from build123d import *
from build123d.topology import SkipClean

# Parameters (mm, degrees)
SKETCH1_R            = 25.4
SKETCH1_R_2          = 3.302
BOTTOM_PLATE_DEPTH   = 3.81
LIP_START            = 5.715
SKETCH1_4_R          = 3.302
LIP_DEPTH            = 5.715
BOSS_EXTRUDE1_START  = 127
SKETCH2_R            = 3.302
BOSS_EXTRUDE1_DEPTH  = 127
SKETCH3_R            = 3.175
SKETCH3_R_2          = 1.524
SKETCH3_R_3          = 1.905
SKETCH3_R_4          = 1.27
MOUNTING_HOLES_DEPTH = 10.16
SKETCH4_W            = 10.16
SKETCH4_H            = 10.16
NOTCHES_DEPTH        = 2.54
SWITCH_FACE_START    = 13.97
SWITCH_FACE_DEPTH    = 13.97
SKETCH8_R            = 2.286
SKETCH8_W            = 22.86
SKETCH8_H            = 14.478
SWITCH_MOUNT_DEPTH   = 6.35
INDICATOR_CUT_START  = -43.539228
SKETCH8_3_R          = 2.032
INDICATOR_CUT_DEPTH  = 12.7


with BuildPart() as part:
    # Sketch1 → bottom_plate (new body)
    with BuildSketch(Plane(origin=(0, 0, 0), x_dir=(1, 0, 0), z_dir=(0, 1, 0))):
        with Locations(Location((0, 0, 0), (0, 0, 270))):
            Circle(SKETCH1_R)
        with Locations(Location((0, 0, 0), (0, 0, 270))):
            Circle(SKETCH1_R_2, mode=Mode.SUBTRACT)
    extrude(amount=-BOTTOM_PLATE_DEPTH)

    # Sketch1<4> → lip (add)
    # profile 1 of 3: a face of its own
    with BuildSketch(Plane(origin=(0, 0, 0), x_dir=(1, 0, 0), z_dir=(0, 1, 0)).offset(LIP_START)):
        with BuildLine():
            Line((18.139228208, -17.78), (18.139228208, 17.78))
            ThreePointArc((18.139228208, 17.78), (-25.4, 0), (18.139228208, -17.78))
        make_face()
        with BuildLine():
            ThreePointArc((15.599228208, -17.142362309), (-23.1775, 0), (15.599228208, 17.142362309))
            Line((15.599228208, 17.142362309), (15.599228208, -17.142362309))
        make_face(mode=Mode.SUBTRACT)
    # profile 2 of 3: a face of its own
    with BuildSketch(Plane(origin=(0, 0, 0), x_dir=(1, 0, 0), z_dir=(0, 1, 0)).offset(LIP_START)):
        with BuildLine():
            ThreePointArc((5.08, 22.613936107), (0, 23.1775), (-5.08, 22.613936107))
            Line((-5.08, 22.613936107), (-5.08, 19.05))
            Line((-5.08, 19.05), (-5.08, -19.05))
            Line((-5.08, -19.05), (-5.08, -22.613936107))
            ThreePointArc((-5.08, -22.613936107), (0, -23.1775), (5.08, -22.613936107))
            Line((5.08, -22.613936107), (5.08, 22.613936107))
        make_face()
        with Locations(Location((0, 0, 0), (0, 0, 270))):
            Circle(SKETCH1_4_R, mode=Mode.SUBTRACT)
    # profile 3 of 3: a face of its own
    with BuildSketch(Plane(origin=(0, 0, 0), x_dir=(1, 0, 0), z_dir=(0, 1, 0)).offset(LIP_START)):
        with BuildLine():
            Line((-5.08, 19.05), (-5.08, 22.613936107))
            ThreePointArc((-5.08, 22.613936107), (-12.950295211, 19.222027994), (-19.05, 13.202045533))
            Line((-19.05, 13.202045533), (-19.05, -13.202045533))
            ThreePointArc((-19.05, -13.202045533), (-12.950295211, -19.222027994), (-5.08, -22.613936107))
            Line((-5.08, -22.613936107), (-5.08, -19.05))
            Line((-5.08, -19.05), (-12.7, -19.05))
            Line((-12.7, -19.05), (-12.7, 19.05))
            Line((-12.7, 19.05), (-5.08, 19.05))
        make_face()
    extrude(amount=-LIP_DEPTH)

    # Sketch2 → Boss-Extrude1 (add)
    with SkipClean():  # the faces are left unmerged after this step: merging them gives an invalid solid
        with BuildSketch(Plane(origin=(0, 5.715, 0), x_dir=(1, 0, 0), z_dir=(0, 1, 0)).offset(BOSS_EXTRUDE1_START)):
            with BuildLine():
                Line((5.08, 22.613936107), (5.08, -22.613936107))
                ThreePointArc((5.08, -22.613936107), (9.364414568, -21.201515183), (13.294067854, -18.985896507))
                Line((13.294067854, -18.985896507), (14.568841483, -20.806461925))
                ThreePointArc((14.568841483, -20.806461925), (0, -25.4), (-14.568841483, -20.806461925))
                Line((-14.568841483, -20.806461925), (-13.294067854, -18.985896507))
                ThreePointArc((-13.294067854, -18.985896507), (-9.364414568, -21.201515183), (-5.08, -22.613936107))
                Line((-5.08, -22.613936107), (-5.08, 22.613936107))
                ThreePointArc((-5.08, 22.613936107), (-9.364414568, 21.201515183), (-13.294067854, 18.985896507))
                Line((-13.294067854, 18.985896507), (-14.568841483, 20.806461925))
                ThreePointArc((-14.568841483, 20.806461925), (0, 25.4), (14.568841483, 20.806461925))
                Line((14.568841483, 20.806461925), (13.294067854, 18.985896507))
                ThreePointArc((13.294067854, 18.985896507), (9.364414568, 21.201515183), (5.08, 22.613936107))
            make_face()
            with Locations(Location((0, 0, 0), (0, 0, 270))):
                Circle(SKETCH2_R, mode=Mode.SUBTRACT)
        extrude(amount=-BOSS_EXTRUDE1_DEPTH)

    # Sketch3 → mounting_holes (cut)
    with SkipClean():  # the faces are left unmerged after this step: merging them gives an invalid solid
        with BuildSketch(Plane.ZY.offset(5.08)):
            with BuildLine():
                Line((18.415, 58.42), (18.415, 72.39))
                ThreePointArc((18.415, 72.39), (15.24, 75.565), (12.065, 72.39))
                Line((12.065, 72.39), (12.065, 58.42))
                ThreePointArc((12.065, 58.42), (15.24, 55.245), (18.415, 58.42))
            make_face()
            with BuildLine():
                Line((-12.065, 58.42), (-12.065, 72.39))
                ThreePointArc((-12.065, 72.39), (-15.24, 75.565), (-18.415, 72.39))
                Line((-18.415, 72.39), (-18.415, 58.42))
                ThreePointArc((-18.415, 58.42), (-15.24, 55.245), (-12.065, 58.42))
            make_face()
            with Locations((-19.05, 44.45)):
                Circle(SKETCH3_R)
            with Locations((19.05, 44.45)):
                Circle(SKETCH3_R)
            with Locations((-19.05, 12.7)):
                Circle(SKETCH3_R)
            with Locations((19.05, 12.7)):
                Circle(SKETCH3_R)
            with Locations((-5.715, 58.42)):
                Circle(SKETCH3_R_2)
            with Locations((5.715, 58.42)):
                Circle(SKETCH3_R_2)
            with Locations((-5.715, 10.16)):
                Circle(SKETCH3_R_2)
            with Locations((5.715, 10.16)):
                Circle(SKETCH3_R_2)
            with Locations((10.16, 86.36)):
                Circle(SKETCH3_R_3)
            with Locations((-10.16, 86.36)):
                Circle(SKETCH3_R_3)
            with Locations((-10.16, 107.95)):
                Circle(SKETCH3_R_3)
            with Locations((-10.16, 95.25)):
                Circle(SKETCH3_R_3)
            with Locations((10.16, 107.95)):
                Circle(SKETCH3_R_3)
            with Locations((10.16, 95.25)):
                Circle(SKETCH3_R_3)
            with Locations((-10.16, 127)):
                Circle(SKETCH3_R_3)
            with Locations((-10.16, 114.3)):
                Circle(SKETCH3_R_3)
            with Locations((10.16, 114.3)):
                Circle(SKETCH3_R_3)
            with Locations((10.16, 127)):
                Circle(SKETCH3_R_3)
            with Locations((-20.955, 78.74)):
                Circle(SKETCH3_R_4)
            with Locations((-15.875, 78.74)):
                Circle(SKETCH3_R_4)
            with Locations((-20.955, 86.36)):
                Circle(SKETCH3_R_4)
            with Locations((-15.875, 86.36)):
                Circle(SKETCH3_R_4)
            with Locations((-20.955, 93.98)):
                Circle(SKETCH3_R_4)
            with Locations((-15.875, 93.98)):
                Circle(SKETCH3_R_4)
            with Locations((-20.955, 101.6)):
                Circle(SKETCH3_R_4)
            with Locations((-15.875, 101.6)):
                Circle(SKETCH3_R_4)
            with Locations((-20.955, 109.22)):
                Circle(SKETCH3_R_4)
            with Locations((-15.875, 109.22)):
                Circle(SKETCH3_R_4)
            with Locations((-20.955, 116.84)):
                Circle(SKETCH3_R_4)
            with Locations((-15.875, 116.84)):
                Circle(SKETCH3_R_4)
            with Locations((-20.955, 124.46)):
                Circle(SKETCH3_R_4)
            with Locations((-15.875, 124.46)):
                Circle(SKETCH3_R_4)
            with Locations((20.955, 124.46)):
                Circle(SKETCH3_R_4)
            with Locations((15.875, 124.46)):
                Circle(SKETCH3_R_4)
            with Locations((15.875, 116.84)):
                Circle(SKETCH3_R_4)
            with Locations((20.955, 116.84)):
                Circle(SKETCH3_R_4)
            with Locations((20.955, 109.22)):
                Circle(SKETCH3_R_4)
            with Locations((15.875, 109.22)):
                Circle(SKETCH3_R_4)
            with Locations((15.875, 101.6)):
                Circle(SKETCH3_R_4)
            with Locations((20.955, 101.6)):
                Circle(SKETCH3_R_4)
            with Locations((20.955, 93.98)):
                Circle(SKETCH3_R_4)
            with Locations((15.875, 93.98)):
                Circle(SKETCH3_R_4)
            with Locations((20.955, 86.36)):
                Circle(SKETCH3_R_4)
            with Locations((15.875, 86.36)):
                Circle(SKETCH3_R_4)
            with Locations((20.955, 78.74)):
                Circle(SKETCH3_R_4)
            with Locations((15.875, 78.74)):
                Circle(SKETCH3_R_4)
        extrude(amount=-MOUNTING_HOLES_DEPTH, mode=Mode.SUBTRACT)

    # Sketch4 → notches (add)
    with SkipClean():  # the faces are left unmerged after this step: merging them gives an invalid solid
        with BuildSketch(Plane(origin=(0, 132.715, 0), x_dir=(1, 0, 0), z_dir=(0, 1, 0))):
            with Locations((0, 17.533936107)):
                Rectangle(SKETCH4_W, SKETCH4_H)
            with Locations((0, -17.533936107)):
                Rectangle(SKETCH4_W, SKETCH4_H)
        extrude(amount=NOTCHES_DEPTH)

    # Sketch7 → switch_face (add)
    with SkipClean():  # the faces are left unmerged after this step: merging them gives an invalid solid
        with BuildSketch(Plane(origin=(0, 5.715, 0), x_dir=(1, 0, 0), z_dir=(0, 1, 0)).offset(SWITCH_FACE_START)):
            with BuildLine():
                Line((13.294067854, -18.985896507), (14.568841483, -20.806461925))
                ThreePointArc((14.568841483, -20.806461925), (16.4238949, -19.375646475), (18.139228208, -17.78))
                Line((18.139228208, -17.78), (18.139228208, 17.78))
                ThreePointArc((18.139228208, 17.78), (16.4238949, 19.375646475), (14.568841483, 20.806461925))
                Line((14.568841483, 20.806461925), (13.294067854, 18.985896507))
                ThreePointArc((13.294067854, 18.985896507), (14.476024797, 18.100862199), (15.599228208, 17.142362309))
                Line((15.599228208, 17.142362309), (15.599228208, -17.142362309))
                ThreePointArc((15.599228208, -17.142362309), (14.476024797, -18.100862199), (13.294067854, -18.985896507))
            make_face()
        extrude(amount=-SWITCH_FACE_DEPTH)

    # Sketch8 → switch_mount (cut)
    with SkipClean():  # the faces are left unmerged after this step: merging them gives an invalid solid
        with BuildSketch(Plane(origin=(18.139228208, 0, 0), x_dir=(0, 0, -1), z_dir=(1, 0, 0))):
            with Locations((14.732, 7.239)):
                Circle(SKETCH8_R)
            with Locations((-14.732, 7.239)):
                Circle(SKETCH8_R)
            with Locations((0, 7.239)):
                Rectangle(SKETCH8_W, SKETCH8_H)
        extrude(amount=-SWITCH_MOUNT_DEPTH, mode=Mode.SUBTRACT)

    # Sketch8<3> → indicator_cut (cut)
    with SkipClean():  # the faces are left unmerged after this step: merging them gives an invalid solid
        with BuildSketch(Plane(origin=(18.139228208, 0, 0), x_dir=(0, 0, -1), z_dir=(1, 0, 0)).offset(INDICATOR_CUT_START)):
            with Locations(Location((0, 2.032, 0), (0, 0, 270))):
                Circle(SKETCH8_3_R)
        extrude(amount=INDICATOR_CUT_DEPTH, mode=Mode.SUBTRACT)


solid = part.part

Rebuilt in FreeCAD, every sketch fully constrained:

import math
import FreeCAD as App
import Part
import Sketcher
from FreeCAD import Vector
Q = App.Units.Quantity


def add_polygon(sketch, points):
    """Adds a closed chain of lines whose ends are joined by coincident constraints."""
    first, n = sketch.GeometryCount, len(points)
    for a, b in zip(points, points[1:] + points[:1]):
        sketch.addGeometry(Part.LineSegment(App.Vector(*a, 0), App.Vector(*b, 0)), False)
    for i in range(n):
        sketch.addConstraint(Sketcher.Constraint("Coincident", first + i, 2, first + (i + 1) % n, 1))

doc = App.newDocument("Part")
params = doc.addObject("Spreadsheet::Sheet", "Params")
for row, (alias, value) in enumerate([
    ("sketch1_diameter", "2 in"),
    ("sketch1_diameter2", "0.26 in"),
    ("pad1_length", "0.15 in"),
    ("sketch2_radius", "1 in"),
    ("sketch2_diameter", "0.26 in"),
    ("sketch2_width", "0.3 in"),
    ("sketch2_height", "1.4 in"),
    ("sketch2_height2", "1.5 in"),
    ("pad2_length", "0.225 in"),
    ("sketch3_radius", "1 in"),
    ("sketch3_diameter", "0.26 in"),
    ("pad3_length", "5 in"),
    ("sketch4_diameter", "0.1 in"),
    ("sketch4_diameter2", "0.25 in"),
    ("sketch4_diameter3", "0.12 in"),
    ("sketch4_diameter4", "0.15 in"),
    ("sketch4_width", "0.55 in"),
    ("pocket1_length", "0.4 in"),
    ("sketch5_width", "0.4 in"),
    ("pad4_length", "0.1 in"),
    ("sketch6_radius", "1 in"),
    ("sketch6_height", "1.4 in"),
    ("pad5_length", "0.55 in"),
    ("sketch7_diameter", "0.18 in"),
    ("sketch7_height", "0.9 in"),
    ("sketch7_width", "0.57 in"),
    ("pocket2_length", "0.25 in"),
    ("sketch8_diameter", "0.16 in"),
    ("pocket3_length", "0.5 in"),
], start=1):
    params.set(f"A{row}", alias)
    params.set(f"B{row}", "=" + value)
    params.setAlias(f"B{row}", alias)

body = doc.addObject("PartDesign::Body", "Body")

# Sketch on XZ plane
sketch1 = body.newObject("Sketcher::SketchObject", "Sketch")
sketch1.AttachmentSupport = (doc.getObject("XZ_Plane"), [""])
sketch1.MapMode = "FlatFace"
sketch1.addGeometry([
    Part.Circle(Vector(0, 0, 0), Vector(0, 0, 1), 25.4),
    Part.Circle(Vector(0, 0, 0), Vector(0, 0, 1), 3.302),
], False)
sketch1.addConstraint([
    Sketcher.Constraint("Coincident", 0, 3, -1, 1),
    Sketcher.Constraint("Coincident", 1, 3, -1, 1),
    Sketcher.Constraint("Diameter", 0, Q("2 in")),
    Sketcher.Constraint("Diameter", 1, Q("0.26 in")),
])
sketch1.setExpression("Constraints[2]", "Params.sketch1_diameter")
sketch1.setExpression("Constraints[3]", "Params.sketch1_diameter2")
pad1 = body.newObject("PartDesign::Pad", "Pad")
pad1.Profile = sketch1
pad1.setExpression("Length", "Params.pad1_length")

# Sketch on XZ plane
sketch2 = body.newObject("Sketcher::SketchObject", "Sketch001")
sketch2.AttachmentSupport = (doc.getObject("XZ_Plane"), [""])
sketch2.MapMode = "FlatFace"
sketch2.AttachmentOffset = App.Placement(Vector(0, 0, -0.225 * 25.4), App.Rotation())
sketch2.addGeometry(Part.LineSegment(Vector(18.139228, 17.78, 0), Vector(18.139228, -17.78, 0)), False)  # 0
sketch2.addGeometry(Part.ArcOfCircle(Part.Circle(Vector(0, 0, 0), Vector(0, 0, 1), 25.4), math.radians(44.427004), math.radians(315.572996)), False)  # 1
sketch2.addGeometry(Part.LineSegment(Vector(15.599228, -17.142362, 0), Vector(15.599228, 17.142362, 0)), False)  # 2
sketch2.addGeometry(Part.ArcOfCircle(Part.Circle(Vector(0, 0, 0), Vector(0, 0, 1), 23.1775), math.radians(47.698393), math.radians(77.339238)), False)  # 3
sketch2.addGeometry(Part.LineSegment(Vector(5.08, 22.613936, 0), Vector(5.08, -22.613936, 0)), False)  # 4
sketch2.addGeometry(Part.ArcOfCircle(Part.Circle(Vector(0, 0, 0), Vector(0, 0, 1), 23.1775), math.radians(-77.339238), math.radians(-47.698393)), False)  # 5
sketch2.addGeometry(Part.ArcOfCircle(Part.Circle(Vector(0, 0, 0), Vector(0, 0, 1), 23.1775), math.radians(145.277237), math.radians(214.722763)), False)  # 6
sketch2.addGeometry(Part.LineSegment(Vector(-19.05, -13.202046, 0), Vector(-19.05, 13.202046, 0)), False)  # 7
sketch2.addGeometry(Part.Circle(Vector(0, 0, 0), Vector(0, 0, 1), 3.302), False)  # 8
add_polygon(sketch2, [(-5.08, -19.05), (-5.08, 19.05), (-12.7, 19.05), (-12.7, -19.05)])  # lines 9-12
sketch2.addConstraint([
    Sketcher.Constraint("Coincident", 0, 1, 1, 1),
    Sketcher.Constraint("Coincident", 1, 2, 0, 2),
    Sketcher.Constraint("Coincident", 2, 2, 3, 1),
    Sketcher.Constraint("Coincident", 3, 2, 4, 1),
    Sketcher.Constraint("Coincident", 4, 2, 5, 1),
    Sketcher.Constraint("Coincident", 5, 2, 2, 1),
    Sketcher.Constraint("Coincident", 6, 1, 7, 2),
    Sketcher.Constraint("Coincident", 7, 1, 6, 2),
    Sketcher.Constraint("Vertical", 0),
    Sketcher.Constraint("Vertical", 2),
    Sketcher.Constraint("Vertical", 4),
    Sketcher.Constraint("Vertical", 7),
    Sketcher.Constraint("Vertical", 9),
    Sketcher.Constraint("Horizontal", 10),
    Sketcher.Constraint("Vertical", 11),
    Sketcher.Constraint("Horizontal", 12),
    Sketcher.Constraint("Coincident", 1, 3, -1, 1),
    Sketcher.Constraint("Coincident", 3, 3, -1, 1),
    Sketcher.Constraint("Coincident", 5, 3, -1, 1),
    Sketcher.Constraint("Coincident", 6, 3, -1, 1),
    Sketcher.Constraint("Coincident", 8, 3, -1, 1),
    Sketcher.Constraint("Equal", 3, 5),
    Sketcher.Constraint("Equal", 5, 6),
    Sketcher.Constraint("Radius", 1, Q("1 in")),
    Sketcher.Constraint("Diameter", 8, Q("0.26 in")),
    Sketcher.Constraint("DistanceX", 10, 2, 10, 1, Q("0.3 in")),
    Sketcher.Constraint("DistanceY", 0, 2, 0, 1, Q("1.4 in")),
    Sketcher.Constraint("DistanceY", 9, 1, 9, 2, Q("1.5 in")),
    Sketcher.Constraint("DistanceX", -1, 1, 3, 2, Q("0.2 in")),
    Sketcher.Constraint("DistanceX", 9, 2, -1, 1, Q("0.2 in")),
    Sketcher.Constraint("Radius", 3, Q("0.9125 in")),
    Sketcher.Constraint("DistanceX", 2, 2, 0, 1, Q("0.1 in")),
    Sketcher.Constraint("DistanceX", 6, 1, -1, 1, Q("0.75 in")),
    Sketcher.Constraint("DistanceY", -1, 1, 9, 2, Q("0.75 in")),
])
sketch2.setExpression("Constraints[27]", "Params.sketch2_radius")
sketch2.setExpression("Constraints[28]", "Params.sketch2_diameter")
sketch2.setExpression("Constraints[29]", "Params.sketch2_width")
sketch2.setExpression("Constraints[30]", "Params.sketch2_height")
sketch2.setExpression("Constraints[31]", "Params.sketch2_height2")
pad2 = body.newObject("PartDesign::Pad", "Pad001")
pad2.Profile = sketch2
pad2.setExpression("Length", "Params.pad2_length")

# Sketch on XZ plane
sketch3 = body.newObject("Sketcher::SketchObject", "Sketch002")
sketch3.AttachmentSupport = (doc.getObject("XZ_Plane"), [""])
sketch3.MapMode = "FlatFace"
sketch3.AttachmentOffset = App.Placement(Vector(0, 0, -5.225 * 25.4), App.Rotation())
sketch3.addGeometry([
    Part.LineSegment(Vector(5.08, 22.613936, 0), Vector(5.08, -22.613936, 0)),  # 0
    Part.ArcOfCircle(Part.Circle(Vector(0, 0, 0), Vector(0, 0, 1), 23.1775), math.radians(-77.339238), math.radians(-55)),  # 1
    Part.LineSegment(Vector(13.294068, -18.985897, 0), Vector(14.568841, -20.806462, 0)),  # 2
    Part.ArcOfCircle(Part.Circle(Vector(0, 0, 0), Vector(0, 0, 1), 25.4), math.radians(-125), math.radians(-55)),  # 3
    Part.LineSegment(Vector(-14.568841, -20.806462, 0), Vector(-13.294068, -18.985897, 0)),  # 4
    Part.ArcOfCircle(Part.Circle(Vector(0, 0, 0), Vector(0, 0, 1), 23.1775), math.radians(-125), math.radians(-102.660762)),  # 5
    Part.LineSegment(Vector(-5.08, -22.613936, 0), Vector(-5.08, 22.613936, 0)),  # 6
    Part.ArcOfCircle(Part.Circle(Vector(0, 0, 0), Vector(0, 0, 1), 23.1775), math.radians(102.660762), math.radians(125)),  # 7
    Part.LineSegment(Vector(-13.294068, 18.985897, 0), Vector(-14.568841, 20.806462, 0)),  # 8
    Part.ArcOfCircle(Part.Circle(Vector(0, 0, 0), Vector(0, 0, 1), 25.4), math.radians(55), math.radians(125)),  # 9
    Part.LineSegment(Vector(14.568841, 20.806462, 0), Vector(13.294068, 18.985897, 0)),  # 10
    Part.ArcOfCircle(Part.Circle(Vector(0, 0, 0), Vector(0, 0, 1), 23.1775), math.radians(55), math.radians(77.339238)),  # 11
    Part.Circle(Vector(0, 0, 0), Vector(0, 0, 1), 3.302),  # 12
], False)
sketch3.addConstraint([
    Sketcher.Constraint("Coincident", 0, 2, 1, 1),
    Sketcher.Constraint("Coincident", 1, 2, 2, 1),
    Sketcher.Constraint("Coincident", 2, 2, 3, 2),
    Sketcher.Constraint("Coincident", 3, 1, 4, 1),
    Sketcher.Constraint("Coincident", 4, 2, 5, 1),
    Sketcher.Constraint("Coincident", 5, 2, 6, 1),
    Sketcher.Constraint("Coincident", 6, 2, 7, 1),
    Sketcher.Constraint("Coincident", 7, 2, 8, 1),
    Sketcher.Constraint("Coincident", 8, 2, 9, 2),
    Sketcher.Constraint("Coincident", 9, 1, 10, 1),
    Sketcher.Constraint("Coincident", 10, 2, 11, 1),
    Sketcher.Constraint("Coincident", 11, 2, 0, 1),
    Sketcher.Constraint("Vertical", 0),
    Sketcher.Constraint("Vertical", 6),
    Sketcher.Constraint("Coincident", 1, 3, -1, 1),
    Sketcher.Constraint("Coincident", 3, 3, -1, 1),
    Sketcher.Constraint("Coincident", 5, 3, -1, 1),
    Sketcher.Constraint("Coincident", 7, 3, -1, 1),
    Sketcher.Constraint("Coincident", 9, 3, -1, 1),
    Sketcher.Constraint("Coincident", 11, 3, -1, 1),
    Sketcher.Constraint("Coincident", 12, 3, -1, 1),
    Sketcher.Constraint("Equal", 1, 5),
    Sketcher.Constraint("Equal", 5, 7),
    Sketcher.Constraint("Equal", 3, 9),
    Sketcher.Constraint("Equal", 7, 11),
    Sketcher.Constraint("Parallel", 2, 8),
    Sketcher.Constraint("Parallel", 4, 10),
    Sketcher.Constraint("Horizontal", 2, 2, 3, 1),
    Sketcher.Constraint("Horizontal", 1, 2, 4, 2),
    Sketcher.Constraint("Horizontal", 0, 2, 5, 2),
    Sketcher.Constraint("Horizontal", 8, 2, 9, 1),
    Sketcher.Constraint("Vertical", 4, 2, 7, 2),
    Sketcher.Constraint("Radius", 3, Q("1 in")),
    Sketcher.Constraint("Diameter", 12, Q("0.26 in")),
    Sketcher.Constraint("Angle", 2, Q("-55 deg")),
    Sketcher.Constraint("DistanceX", -1, 1, 0, 2, Q("0.2 in")),
    Sketcher.Constraint("Radius", 1, Q("0.9125 in")),
    Sketcher.Constraint("DistanceX", -1, 1, 2, 2, 14.568841),
])
sketch3.setExpression("Constraints[32]", "Params.sketch3_radius")
sketch3.setExpression("Constraints[33]", "Params.sketch3_diameter")
pad3 = body.newObject("PartDesign::Pad", "Pad002")
pad3.Profile = sketch3
pad3.setExpression("Length", "Params.pad3_length")

# Sketch on YZ plane
sketch4 = body.newObject("Sketcher::SketchObject", "Sketch003")
sketch4.AttachmentSupport = (doc.getObject("YZ_Plane"), [""])
sketch4.MapMode = "FlatFace"
sketch4.AttachmentOffset = App.Placement(Vector(0, 0, -0.2 * 25.4), App.Rotation())
sketch4.addGeometry([
    Part.LineSegment(Vector(58.42, 18.415, 0), Vector(72.39, 18.415, 0)),  # 0
    Part.ArcOfCircle(Part.Circle(Vector(72.39, 15.24, 0), Vector(0, 0, 1), 3.175), math.radians(-90), math.radians(90)),  # 1
    Part.LineSegment(Vector(72.39, 12.065, 0), Vector(58.42, 12.065, 0)),  # 2
    Part.ArcOfCircle(Part.Circle(Vector(58.42, 15.24, 0), Vector(0, 0, 1), 3.175), math.radians(90), math.radians(270)),  # 3
    Part.LineSegment(Vector(58.42, -12.065, 0), Vector(72.39, -12.065, 0)),  # 4
    Part.ArcOfCircle(Part.Circle(Vector(72.39, -15.24, 0), Vector(0, 0, 1), 3.175), math.radians(-90), math.radians(90)),  # 5
    Part.LineSegment(Vector(72.39, -18.415, 0), Vector(58.42, -18.415, 0)),  # 6
    Part.ArcOfCircle(Part.Circle(Vector(58.42, -15.24, 0), Vector(0, 0, 1), 3.175), math.radians(90), math.radians(270)),  # 7
    Part.Circle(Vector(44.45, -19.05, 0), Vector(0, 0, 1), 3.175),  # 8
    Part.Circle(Vector(44.45, 19.05, 0), Vector(0, 0, 1), 3.175),  # 9
    Part.Circle(Vector(12.7, -19.05, 0), Vector(0, 0, 1), 3.175),  # 10
    Part.Circle(Vector(12.7, 19.05, 0), Vector(0, 0, 1), 3.175),  # 11
    Part.Circle(Vector(58.42, -5.715, 0), Vector(0, 0, 1), 1.524),  # 12
    Part.Circle(Vector(58.42, 5.715, 0), Vector(0, 0, 1), 1.524),  # 13
    Part.Circle(Vector(10.16, -5.715, 0), Vector(0, 0, 1), 1.524),  # 14
    Part.Circle(Vector(10.16, 5.715, 0), Vector(0, 0, 1), 1.524),  # 15
    Part.Circle(Vector(86.36, 10.16, 0), Vector(0, 0, 1), 1.905),  # 16
    Part.Circle(Vector(86.36, -10.16, 0), Vector(0, 0, 1), 1.905),  # 17
    Part.Circle(Vector(107.95, -10.16, 0), Vector(0, 0, 1), 1.905),  # 18
    Part.Circle(Vector(95.25, -10.16, 0), Vector(0, 0, 1), 1.905),  # 19
    Part.Circle(Vector(107.95, 10.16, 0), Vector(0, 0, 1), 1.905),  # 20
    Part.Circle(Vector(95.25, 10.16, 0), Vector(0, 0, 1), 1.905),  # 21
    Part.Circle(Vector(127, -10.16, 0), Vector(0, 0, 1), 1.905),  # 22
    Part.Circle(Vector(114.3, -10.16, 0), Vector(0, 0, 1), 1.905),  # 23
    Part.Circle(Vector(114.3, 10.16, 0), Vector(0, 0, 1), 1.905),  # 24
    Part.Circle(Vector(127, 10.16, 0), Vector(0, 0, 1), 1.905),  # 25
    Part.Circle(Vector(78.74, -20.955, 0), Vector(0, 0, 1), 1.27),  # 26
    Part.Circle(Vector(78.74, -15.875, 0), Vector(0, 0, 1), 1.27),  # 27
    Part.Circle(Vector(86.36, -20.955, 0), Vector(0, 0, 1), 1.27),  # 28
    Part.Circle(Vector(86.36, -15.875, 0), Vector(0, 0, 1), 1.27),  # 29
    Part.Circle(Vector(93.98, -20.955, 0), Vector(0, 0, 1), 1.27),  # 30
    Part.Circle(Vector(93.98, -15.875, 0), Vector(0, 0, 1), 1.27),  # 31
    Part.Circle(Vector(101.6, -20.955, 0), Vector(0, 0, 1), 1.27),  # 32
    Part.Circle(Vector(101.6, -15.875, 0), Vector(0, 0, 1), 1.27),  # 33
    Part.Circle(Vector(109.22, -20.955, 0), Vector(0, 0, 1), 1.27),  # 34
    Part.Circle(Vector(109.22, -15.875, 0), Vector(0, 0, 1), 1.27),  # 35
    Part.Circle(Vector(116.84, -20.955, 0), Vector(0, 0, 1), 1.27),  # 36
    Part.Circle(Vector(116.84, -15.875, 0), Vector(0, 0, 1), 1.27),  # 37
    Part.Circle(Vector(124.46, -20.955, 0), Vector(0, 0, 1), 1.27),  # 38
    Part.Circle(Vector(124.46, -15.875, 0), Vector(0, 0, 1), 1.27),  # 39
    Part.Circle(Vector(124.46, 20.955, 0), Vector(0, 0, 1), 1.27),  # 40
    Part.Circle(Vector(124.46, 15.875, 0), Vector(0, 0, 1), 1.27),  # 41
    Part.Circle(Vector(116.84, 15.875, 0), Vector(0, 0, 1), 1.27),  # 42
    Part.Circle(Vector(116.84, 20.955, 0), Vector(0, 0, 1), 1.27),  # 43
    Part.Circle(Vector(109.22, 20.955, 0), Vector(0, 0, 1), 1.27),  # 44
    Part.Circle(Vector(109.22, 15.875, 0), Vector(0, 0, 1), 1.27),  # 45
    Part.Circle(Vector(101.6, 15.875, 0), Vector(0, 0, 1), 1.27),  # 46
    Part.Circle(Vector(101.6, 20.955, 0), Vector(0, 0, 1), 1.27),  # 47
    Part.Circle(Vector(93.98, 20.955, 0), Vector(0, 0, 1), 1.27),  # 48
    Part.Circle(Vector(93.98, 15.875, 0), Vector(0, 0, 1), 1.27),  # 49
    Part.Circle(Vector(86.36, 20.955, 0), Vector(0, 0, 1), 1.27),  # 50
    Part.Circle(Vector(86.36, 15.875, 0), Vector(0, 0, 1), 1.27),  # 51
    Part.Circle(Vector(78.74, 20.955, 0), Vector(0, 0, 1), 1.27),  # 52
    Part.Circle(Vector(78.74, 15.875, 0), Vector(0, 0, 1), 1.27),  # 53
], False)
sketch4.addConstraint([
    Sketcher.Constraint("Tangent", 0, 2, 1, 2),
    Sketcher.Constraint("Tangent", 1, 1, 2, 1),
    Sketcher.Constraint("Tangent", 2, 2, 3, 2),
    Sketcher.Constraint("Tangent", 3, 1, 0, 1),
    Sketcher.Constraint("Tangent", 4, 2, 5, 2),
    Sketcher.Constraint("Tangent", 5, 1, 6, 1),
    Sketcher.Constraint("Tangent", 6, 2, 7, 2),
    Sketcher.Constraint("Tangent", 7, 1, 4, 1),
    Sketcher.Constraint("Horizontal", 0),
    Sketcher.Constraint("Horizontal", 2),
    Sketcher.Constraint("Horizontal", 4),
    Sketcher.Constraint("Horizontal", 6),
    Sketcher.Constraint("Equal", 3, 5),
    Sketcher.Constraint("Equal", 7, 8),
    Sketcher.Constraint("Equal", 8, 9),
    Sketcher.Constraint("Equal", 9, 10),
    Sketcher.Constraint("Equal", 10, 11),
    Sketcher.Constraint("Equal", 12, 13),
    Sketcher.Constraint("Equal", 13, 14),
    Sketcher.Constraint("Equal", 14, 15),
    Sketcher.Constraint("Equal", 16, 17),
    Sketcher.Constraint("Equal", 17, 18),
    Sketcher.Constraint("Equal", 18, 19),
    Sketcher.Constraint("Equal", 19, 20),
    Sketcher.Constraint("Equal", 20, 21),
    Sketcher.Constraint("Equal", 21, 22),
    Sketcher.Constraint("Equal", 22, 23),
    Sketcher.Constraint("Equal", 23, 24),
    Sketcher.Constraint("Equal", 24, 25),
    Sketcher.Constraint("Equal", 26, 27),
    Sketcher.Constraint("Equal", 27, 28),
    Sketcher.Constraint("Equal", 28, 29),
    Sketcher.Constraint("Equal", 29, 30),
    Sketcher.Constraint("Equal", 30, 31),
    Sketcher.Constraint("Equal", 31, 32),
    Sketcher.Constraint("Equal", 32, 33),
    Sketcher.Constraint("Equal", 33, 34),
    Sketcher.Constraint("Equal", 34, 35),
    Sketcher.Constraint("Equal", 35, 36),
    Sketcher.Constraint("Equal", 36, 37),
    Sketcher.Constraint("Equal", 37, 38),
    Sketcher.Constraint("Equal", 38, 39),
    Sketcher.Constraint("Equal", 39, 40),
    Sketcher.Constraint("Equal", 40, 41),
    Sketcher.Constraint("Equal", 41, 42),
    Sketcher.Constraint("Equal", 42, 43),
    Sketcher.Constraint("Equal", 43, 44),
    Sketcher.Constraint("Equal", 44, 45),
    Sketcher.Constraint("Equal", 45, 46),
    Sketcher.Constraint("Equal", 46, 47),
    Sketcher.Constraint("Equal", 47, 48),
    Sketcher.Constraint("Equal", 48, 49),
    Sketcher.Constraint("Equal", 49, 50),
    Sketcher.Constraint("Equal", 50, 51),
    Sketcher.Constraint("Equal", 51, 52),
    Sketcher.Constraint("Equal", 52, 53),
    Sketcher.Constraint("Symmetric", 1, 3, 5, 3, -1),
    Sketcher.Constraint("Symmetric", 8, 3, 9, 3, -1),
    Sketcher.Constraint("Symmetric", 10, 3, 11, 3, -1),
    Sketcher.Constraint("Symmetric", 12, 3, 13, 3, -1),
    Sketcher.Constraint("Symmetric", 14, 3, 15, 3, -1),
    Sketcher.Constraint("Symmetric", 16, 3, 17, 3, -1),
    Sketcher.Constraint("Symmetric", 18, 3, 20, 3, -1),
    Sketcher.Constraint("Symmetric", 19, 3, 21, 3, -1),
    Sketcher.Constraint("Symmetric", 23, 3, 24, 3, -1),
    Sketcher.Constraint("Symmetric", 22, 3, 25, 3, -1),
    Sketcher.Constraint("Symmetric", 38, 3, 40, 3, -1),
    Sketcher.Constraint("Symmetric", 39, 3, 41, 3, -1),
    Sketcher.Constraint("Symmetric", 37, 3, 42, 3, -1),
    Sketcher.Constraint("Symmetric", 36, 3, 43, 3, -1),
    Sketcher.Constraint("Symmetric", 34, 3, 44, 3, -1),
    Sketcher.Constraint("Symmetric", 35, 3, 45, 3, -1),
    Sketcher.Constraint("Symmetric", 33, 3, 46, 3, -1),
    Sketcher.Constraint("Symmetric", 32, 3, 47, 3, -1),
    Sketcher.Constraint("Symmetric", 30, 3, 48, 3, -1),
    Sketcher.Constraint("Symmetric", 31, 3, 49, 3, -1),
    Sketcher.Constraint("Symmetric", 28, 3, 50, 3, -1),
    Sketcher.Constraint("Symmetric", 29, 3, 51, 3, -1),
    Sketcher.Constraint("Symmetric", 26, 3, 52, 3, -1),
    Sketcher.Constraint("Symmetric", 27, 3, 53, 3, -1),
    Sketcher.Constraint("Horizontal", 8, 3, 10, 3),
    Sketcher.Constraint("Horizontal", 12, 3, 14, 3),
    Sketcher.Constraint("Horizontal", 17, 3, 18, 3),
    Sketcher.Constraint("Horizontal", 18, 3, 19, 3),
    Sketcher.Constraint("Horizontal", 19, 3, 22, 3),
    Sketcher.Constraint("Horizontal", 22, 3, 23, 3),
    Sketcher.Constraint("Horizontal", 26, 3, 28, 3),
    Sketcher.Constraint("Horizontal", 27, 3, 29, 3),
    Sketcher.Constraint("Horizontal", 28, 3, 30, 3),
    Sketcher.Constraint("Horizontal", 29, 3, 31, 3),
    Sketcher.Constraint("Horizontal", 30, 3, 32, 3),
    Sketcher.Constraint("Horizontal", 31, 3, 33, 3),
    Sketcher.Constraint("Horizontal", 32, 3, 34, 3),
    Sketcher.Constraint("Horizontal", 33, 3, 35, 3),
    Sketcher.Constraint("Horizontal", 34, 3, 36, 3),
    Sketcher.Constraint("Horizontal", 35, 3, 37, 3),
    Sketcher.Constraint("Horizontal", 36, 3, 38, 3),
    Sketcher.Constraint("Horizontal", 37, 3, 39, 3),
    Sketcher.Constraint("Vertical", 3, 3, 7, 3),
    Sketcher.Constraint("Vertical", 7, 3, 12, 3),
    Sketcher.Constraint("Vertical", 26, 3, 27, 3),
    Sketcher.Constraint("Vertical", 17, 3, 28, 3),
    Sketcher.Constraint("Vertical", 28, 3, 29, 3),
    Sketcher.Constraint("Vertical", 30, 3, 31, 3),
    Sketcher.Constraint("Vertical", 32, 3, 33, 3),
    Sketcher.Constraint("Vertical", 34, 3, 35, 3),
    Sketcher.Constraint("Vertical", 36, 3, 37, 3),
    Sketcher.Constraint("Vertical", 38, 3, 39, 3),
    Sketcher.Constraint("Diameter", 26, Q("0.1 in")),
    Sketcher.Constraint("Diameter", 8, Q("0.25 in")),
    Sketcher.Constraint("Diameter", 12, Q("0.12 in")),
    Sketcher.Constraint("Diameter", 16, Q("0.15 in")),
    Sketcher.Constraint("DistanceX", -1, 1, 22, 3, Q("5 in")),
    Sketcher.Constraint("DistanceX", -1, 1, 32, 3, Q("4 in")),
    Sketcher.Constraint("DistanceY", 5, 3, 16, 3, Q("1 in")),
    Sketcher.Constraint("DistanceX", 0, 1, 0, 2, Q("0.55 in")),
    Sketcher.Constraint("DistanceY", -1, 1, 1, 3, Q("0.6 in")),
    Sketcher.Constraint("DistanceX", -1, 1, 3, 3, Q("2.3 in")),
    Sketcher.Constraint("DistanceX", -1, 1, 10, 3, Q("0.5 in")),
    Sketcher.Constraint("DistanceX", -1, 1, 14, 3, Q("0.4 in")),
    Sketcher.Constraint("DistanceX", -1, 1, 16, 3, Q("3.4 in")),
    Sketcher.Constraint("DistanceX", -1, 1, 23, 3, Q("4.5 in")),
    Sketcher.Constraint("DistanceX", -1, 1, 26, 3, Q("3.1 in")),
    Sketcher.Constraint("DistanceX", -1, 1, 30, 3, Q("3.7 in")),
    Sketcher.Constraint("DistanceX", -1, 1, 34, 3, Q("4.3 in")),
    Sketcher.Constraint("DistanceX", -1, 1, 36, 3, Q("4.6 in")),
    Sketcher.Constraint("DistanceX", -1, 1, 38, 3, Q("4.9 in")),
    Sketcher.Constraint("DistanceX", 8, 3, 5, 3, Q("1.1 in")),
    Sketcher.Constraint("DistanceY", 8, 3, 9, 3, Q("1.5 in")),
    Sketcher.Constraint("DistanceX", 5, 3, 18, 3, Q("1.4 in")),
    Sketcher.Constraint("DistanceX", 19, 3, 18, 3, Q("0.5 in")),
    Sketcher.Constraint("DistanceY", 26, 3, 12, 3, Q("0.6 in")),
    Sketcher.Constraint("DistanceY", 26, 3, 27, 3, Q("0.2 in")),
    Sketcher.Constraint("DistanceY", 0, 2, 52, 3, Q("0.1 in")),
])
sketch4.setExpression("Constraints[108]", "Params.sketch4_diameter")
sketch4.setExpression("Constraints[109]", "Params.sketch4_diameter2")
sketch4.setExpression("Constraints[110]", "Params.sketch4_diameter3")
sketch4.setExpression("Constraints[111]", "Params.sketch4_diameter4")
sketch4.setExpression("Constraints[115]", "Params.sketch4_width")
pocket1 = body.newObject("PartDesign::Pocket", "Pocket")
pocket1.Profile = sketch4
pocket1.setExpression("Length", "Params.pocket1_length")
pocket1.Reversed = True

# Sketch on XZ plane
sketch5 = body.newObject("Sketcher::SketchObject", "Sketch004")
sketch5.AttachmentSupport = (doc.getObject("XZ_Plane"), [""])
sketch5.MapMode = "FlatFace"
sketch5.AttachmentOffset = App.Placement(Vector(0, 0, -5.225 * 25.4), App.Rotation())
add_polygon(sketch5, [(-5.08, -22.613936), (-5.08, -12.453936), (5.08, -12.453936), (5.08, -22.613936)])  # lines 0-3
add_polygon(sketch5, [(-5.08, 12.453936), (-5.08, 22.613936), (5.08, 22.613936), (5.08, 12.453936)])  # lines 4-7
sketch5.addConstraint([
    Sketcher.Constraint("Vertical", 0),
    Sketcher.Constraint("Horizontal", 1),
    Sketcher.Constraint("Vertical", 2),
    Sketcher.Constraint("Horizontal", 3),
    Sketcher.Constraint("Vertical", 4),
    Sketcher.Constraint("Horizontal", 5),
    Sketcher.Constraint("Vertical", 6),
    Sketcher.Constraint("Horizontal", 7),
    Sketcher.Constraint("Symmetric", 2, 2, 4, 2, -1, 1),
    Sketcher.Constraint("Symmetric", 0, 2, 6, 2, -1, 1),
    Sketcher.Constraint("Vertical", 3, 2, 4, 2),
    Sketcher.Constraint("Equal", 7, 0),
    Sketcher.Constraint("DistanceX", 1, 1, 1, 2, Q("0.4 in")),
    Sketcher.Constraint("DistanceY", 0, 2, -1, 1, 12.453936),
])
sketch5.setExpression("Constraints[20]", "Params.sketch5_width")
pad4 = body.newObject("PartDesign::Pad", "Pad003")
pad4.Profile = sketch5
pad4.setExpression("Length", "Params.pad4_length")
pad4.Reversed = True

# Sketch on XZ plane
sketch6 = body.newObject("Sketcher::SketchObject", "Sketch005")
sketch6.AttachmentSupport = (doc.getObject("XZ_Plane"), [""])
sketch6.MapMode = "FlatFace"
sketch6.AttachmentOffset = App.Placement(Vector(0, 0, -0.775 * 25.4), App.Rotation())
sketch6.addGeometry([
    Part.LineSegment(Vector(13.294068, 18.985897, 0), Vector(14.568841, 20.806462, 0)),  # 0
    Part.ArcOfCircle(Part.Circle(Vector(0, 0, 0), Vector(0, 0, 1), 25.4), math.radians(44.427004), math.radians(55)),  # 1
    Part.LineSegment(Vector(18.139228, 17.78, 0), Vector(18.139228, -17.78, 0)),  # 2
    Part.ArcOfCircle(Part.Circle(Vector(0, 0, 0), Vector(0, 0, 1), 25.4), math.radians(-55), math.radians(-44.427004)),  # 3
    Part.LineSegment(Vector(14.568841, -20.806462, 0), Vector(13.294068, -18.985897, 0)),  # 4
    Part.ArcOfCircle(Part.Circle(Vector(0, 0, 0), Vector(0, 0, 1), 23.1775), math.radians(-55), math.radians(-47.698393)),  # 5
    Part.LineSegment(Vector(15.599228, -17.142362, 0), Vector(15.599228, 17.142362, 0)),  # 6
    Part.ArcOfCircle(Part.Circle(Vector(0, 0, 0), Vector(0, 0, 1), 23.1775), math.radians(47.698393), math.radians(55)),  # 7
], False)
sketch6.addConstraint([
    Sketcher.Constraint("Coincident", 0, 2, 1, 2),
    Sketcher.Constraint("Coincident", 1, 1, 2, 1),
    Sketcher.Constraint("Coincident", 2, 2, 3, 2),
    Sketcher.Constraint("Coincident", 3, 1, 4, 1),
    Sketcher.Constraint("Coincident", 4, 2, 5, 1),
    Sketcher.Constraint("Coincident", 5, 2, 6, 1),
    Sketcher.Constraint("Coincident", 6, 2, 7, 1),
    Sketcher.Constraint("Coincident", 7, 2, 0, 1),
    Sketcher.Constraint("Vertical", 2),
    Sketcher.Constraint("Vertical", 6),
    Sketcher.Constraint("Coincident", 1, 3, -1, 1),
    Sketcher.Constraint("Coincident", 3, 3, -1, 1),
    Sketcher.Constraint("Coincident", 5, 3, -1, 1),
    Sketcher.Constraint("Coincident", 7, 3, -1, 1),
    Sketcher.Constraint("Equal", 1, 3),
    Sketcher.Constraint("Equal", 5, 7),
    Sketcher.Constraint("Vertical", 0, 2, 3, 1),
    Sketcher.Constraint("Vertical", 4, 2, 7, 2),
    Sketcher.Constraint("Radius", 1, Q("1 in")),
    Sketcher.Constraint("DistanceY", 2, 2, 2, 1, Q("1.4 in")),
    Sketcher.Constraint("Angle", 0, Q("55 deg")),
    Sketcher.Constraint("Radius", 5, Q("0.9125 in")),
    Sketcher.Constraint("DistanceX", 5, 2, 2, 2, Q("0.1 in")),
    Sketcher.Constraint("DistanceY", 3, 1, 5, 2, 3.6641),
])
sketch6.setExpression("Constraints[18]", "Params.sketch6_radius")
sketch6.setExpression("Constraints[19]", "Params.sketch6_height")
pad5 = body.newObject("PartDesign::Pad", "Pad004")
pad5.Profile = sketch6
pad5.setExpression("Length", "Params.pad5_length")

# Sketch on YZ plane
sketch7 = body.newObject("Sketcher::SketchObject", "Sketch006")
sketch7.AttachmentSupport = (doc.getObject("YZ_Plane"), [""])
sketch7.MapMode = "FlatFace"
sketch7.AttachmentOffset = App.Placement(Vector(0, 0, 18.139228), App.Rotation())
sketch7.addGeometry(Part.Circle(Vector(7.239, -14.732, 0), Vector(0, 0, 1), 2.286), False)  # 0
sketch7.addGeometry(Part.Circle(Vector(7.239, 14.732, 0), Vector(0, 0, 1), 2.286), False)  # 1
add_polygon(sketch7, [(14.478, 11.43), (0, 11.43), (0, -11.43), (14.478, -11.43)])  # lines 2-5
sketch7.addConstraint([
    Sketcher.Constraint("Horizontal", 2),
    Sketcher.Constraint("Vertical", 3),
    Sketcher.Constraint("Horizontal", 4),
    Sketcher.Constraint("Vertical", 5),
    Sketcher.Constraint("Equal", 0, 1),
    Sketcher.Constraint("Symmetric", 2, 2, 3, 2, -1, 1),
    Sketcher.Constraint("Symmetric", 0, 3, 1, 3, -1),
    Sketcher.Constraint("Diameter", 0, Q("0.18 in")),
    Sketcher.Constraint("DistanceY", 3, 2, 3, 1, Q("0.9 in")),
    Sketcher.Constraint("DistanceX", 2, 2, 2, 1, Q("0.57 in")),
    Sketcher.Constraint("DistanceY", 0, 3, -1, 1, Q("0.58 in")),
    Sketcher.Constraint("DistanceX", -1, 1, 0, 3, Q("0.285 in")),
])
sketch7.setExpression("Constraints[11]", "Params.sketch7_diameter")
sketch7.setExpression("Constraints[12]", "Params.sketch7_height")
sketch7.setExpression("Constraints[13]", "Params.sketch7_width")
pocket2 = body.newObject("PartDesign::Pocket", "Pocket001")
pocket2.Profile = sketch7
pocket2.setExpression("Length", "Params.pocket2_length")

# Sketch on YZ plane
sketch8 = body.newObject("Sketcher::SketchObject", "Sketch007")
sketch8.AttachmentSupport = (doc.getObject("YZ_Plane"), [""])
sketch8.MapMode = "FlatFace"
sketch8.AttachmentOffset = App.Placement(Vector(0, 0, -1 * 25.4), App.Rotation())
sketch8.addGeometry(Part.Circle(Vector(2.032, 0, 0), Vector(0, 0, 1), 2.032), False)
sketch8.addConstraint([
    Sketcher.Constraint("PointOnObject", 0, 3, -1),
    Sketcher.Constraint("Diameter", 0, Q("0.16 in")),
    Sketcher.Constraint("DistanceX", -1, 1, 0, 3, Q("0.08 in")),
])
sketch8.setExpression("Constraints[1]", "Params.sketch8_diameter")
pocket3 = body.newObject("PartDesign::Pocket", "Pocket002")
pocket3.Profile = sketch8
pocket3.setExpression("Length", "Params.pocket3_length")
pocket3.Reversed = True

doc.recompute()
